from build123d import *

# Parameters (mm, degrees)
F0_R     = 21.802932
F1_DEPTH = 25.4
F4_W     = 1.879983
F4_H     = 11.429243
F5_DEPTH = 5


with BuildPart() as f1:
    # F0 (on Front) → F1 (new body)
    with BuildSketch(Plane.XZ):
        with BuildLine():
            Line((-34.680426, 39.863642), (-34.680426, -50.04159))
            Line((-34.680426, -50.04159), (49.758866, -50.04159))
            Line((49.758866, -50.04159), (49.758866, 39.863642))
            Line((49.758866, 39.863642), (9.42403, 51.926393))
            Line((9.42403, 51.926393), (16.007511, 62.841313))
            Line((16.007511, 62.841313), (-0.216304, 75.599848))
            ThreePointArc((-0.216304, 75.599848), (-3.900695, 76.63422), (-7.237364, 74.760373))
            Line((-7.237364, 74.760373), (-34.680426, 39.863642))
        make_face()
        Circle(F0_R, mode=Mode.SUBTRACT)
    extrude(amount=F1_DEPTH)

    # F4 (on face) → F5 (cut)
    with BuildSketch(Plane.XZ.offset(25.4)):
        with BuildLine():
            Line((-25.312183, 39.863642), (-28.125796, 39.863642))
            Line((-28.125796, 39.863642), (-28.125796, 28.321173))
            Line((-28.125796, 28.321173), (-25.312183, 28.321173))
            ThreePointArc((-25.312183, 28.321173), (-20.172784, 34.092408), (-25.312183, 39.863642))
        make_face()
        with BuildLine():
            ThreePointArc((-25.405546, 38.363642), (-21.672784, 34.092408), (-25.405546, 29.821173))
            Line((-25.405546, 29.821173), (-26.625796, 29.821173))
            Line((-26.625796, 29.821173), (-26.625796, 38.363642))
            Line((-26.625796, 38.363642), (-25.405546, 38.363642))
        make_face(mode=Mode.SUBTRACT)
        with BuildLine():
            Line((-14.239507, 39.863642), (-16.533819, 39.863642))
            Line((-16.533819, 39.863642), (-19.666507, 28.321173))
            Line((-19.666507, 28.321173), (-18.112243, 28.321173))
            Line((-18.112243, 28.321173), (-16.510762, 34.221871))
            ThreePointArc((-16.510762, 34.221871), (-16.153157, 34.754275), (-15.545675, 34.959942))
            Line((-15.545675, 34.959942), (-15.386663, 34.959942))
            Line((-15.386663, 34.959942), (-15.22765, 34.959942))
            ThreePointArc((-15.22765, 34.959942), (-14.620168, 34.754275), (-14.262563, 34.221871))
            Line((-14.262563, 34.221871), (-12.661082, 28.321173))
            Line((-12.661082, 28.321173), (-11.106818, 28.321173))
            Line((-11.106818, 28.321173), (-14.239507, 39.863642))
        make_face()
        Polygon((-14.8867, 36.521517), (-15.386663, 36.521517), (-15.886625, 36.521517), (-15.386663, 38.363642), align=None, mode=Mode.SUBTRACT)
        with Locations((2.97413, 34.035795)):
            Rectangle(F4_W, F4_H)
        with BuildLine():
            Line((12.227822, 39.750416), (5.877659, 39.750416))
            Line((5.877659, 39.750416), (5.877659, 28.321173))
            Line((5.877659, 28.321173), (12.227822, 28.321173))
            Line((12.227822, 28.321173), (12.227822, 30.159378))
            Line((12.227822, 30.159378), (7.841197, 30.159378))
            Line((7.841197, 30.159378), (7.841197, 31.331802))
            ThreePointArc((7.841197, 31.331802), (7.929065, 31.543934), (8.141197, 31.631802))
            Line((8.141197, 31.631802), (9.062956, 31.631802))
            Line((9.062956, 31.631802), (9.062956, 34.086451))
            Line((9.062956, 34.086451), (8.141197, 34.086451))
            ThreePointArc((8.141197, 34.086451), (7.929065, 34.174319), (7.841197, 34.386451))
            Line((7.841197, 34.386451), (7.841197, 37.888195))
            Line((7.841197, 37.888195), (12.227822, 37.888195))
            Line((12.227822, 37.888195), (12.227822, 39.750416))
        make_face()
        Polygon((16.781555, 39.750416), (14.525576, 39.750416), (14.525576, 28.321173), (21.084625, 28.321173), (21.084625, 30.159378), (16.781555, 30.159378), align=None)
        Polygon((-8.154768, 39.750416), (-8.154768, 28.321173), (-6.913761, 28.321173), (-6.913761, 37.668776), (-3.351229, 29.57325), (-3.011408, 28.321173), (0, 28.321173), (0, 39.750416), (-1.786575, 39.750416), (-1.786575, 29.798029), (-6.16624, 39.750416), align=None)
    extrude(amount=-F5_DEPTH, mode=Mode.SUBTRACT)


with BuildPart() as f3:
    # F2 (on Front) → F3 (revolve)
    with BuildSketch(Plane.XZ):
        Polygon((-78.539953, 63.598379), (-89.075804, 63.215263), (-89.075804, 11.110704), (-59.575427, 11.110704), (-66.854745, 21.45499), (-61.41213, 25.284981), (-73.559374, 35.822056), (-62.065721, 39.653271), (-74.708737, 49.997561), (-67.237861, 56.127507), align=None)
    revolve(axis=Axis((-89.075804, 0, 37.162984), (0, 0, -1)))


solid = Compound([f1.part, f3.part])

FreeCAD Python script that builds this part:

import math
import FreeCAD as App
import Part
import Sketcher
from FreeCAD import Vector
Q = App.Units.Quantity


def add_polygon(sketch, points):
    """Adds a closed chain of lines whose ends are joined by coincident constraints."""
    first, n = sketch.GeometryCount, len(points)
    for a, b in zip(points, points[1:] + points[:1]):
        sketch.addGeometry(Part.LineSegment(App.Vector(*a, 0), App.Vector(*b, 0)), False)
    for i in range(n):
        sketch.addConstraint(Sketcher.Constraint("Coincident", first + i, 2, first + (i + 1) % n, 1))

doc = App.newDocument("Part")
body = doc.addObject("PartDesign::Body", "Body")

sketch1 = doc.addObject("Sketcher::SketchObject", "Sketch")
body.addObject(sketch1)
sketch1.AttachmentSupport = (doc.XZ_Plane, [""])
sketch1.MapMode = "FlatFace"
sketch1.addGeometry(Part.LineSegment(Vector(-34.7, 39.9, 0), Vector(-34.7, -50, 0)), False)
sketch1.addGeometry(Part.LineSegment(Vector(-34.7, -50, 0), Vector(49.8, -50, 0)), False)
sketch1.addGeometry(Part.LineSegment(Vector(49.8, -50, 0), Vector(49.8, 39.9, 0)), False)
sketch1.addGeometry(Part.LineSegment(Vector(49.8, 39.9, 0), Vector(9.4, 51.9, 0)), False)
sketch1.addGeometry(Part.LineSegment(Vector(9.4, 51.9, 0), Vector(16, 62.8, 0)), False)
sketch1.addGeometry(Part.LineSegment(Vector(16, 62.8, 0), Vector(-0.2, 75.6, 0)), False)
sketch1.addGeometry(Part.ArcOfCircle(Part.Circle(Vector(-3.3, 71.7, 0), Vector(0, 0, 1), 5), math.radians(52), math.radians(142)), False)
sketch1.addGeometry(Part.LineSegment(Vector(-7.2, 74.8, 0), Vector(-34.7, 39.9, 0)), False)
sketch1.addGeometry(Part.Circle(Vector(0, 0, 0), Vector(0, 0, 1), 21.8), False)
sketch1.addConstraint(Sketcher.Constraint("Coincident", 0, 2, 1, 1))
sketch1.addConstraint(Sketcher.Constraint("Coincident", 1, 2, 2, 1))
sketch1.addConstraint(Sketcher.Constraint("Coincident", 2, 2, 3, 1))
sketch1.addConstraint(Sketcher.Constraint("Coincident", 3, 2, 4, 1))
sketch1.addConstraint(Sketcher.Constraint("Coincident", 4, 2, 5, 1))
sketch1.addConstraint(Sketcher.Constraint("Tangent", 5, 2, 6, 1))
sketch1.addConstraint(Sketcher.Constraint("Tangent", 6, 2, 7, 1))
sketch1.addConstraint(Sketcher.Constraint("Coincident", 7, 2, 0, 1))
sketch1.addConstraint(Sketcher.Constraint("Vertical", 0))
sketch1.addConstraint(Sketcher.Constraint("Horizontal", 1))
sketch1.addConstraint(Sketcher.Constraint("Vertical", 2))
sketch1.addConstraint(Sketcher.Constraint("Coincident", 8, 3, -1, 1))
sketch1.addConstraint(Sketcher.Constraint("Perpendicular", 5, 7))
sketch1.addConstraint(Sketcher.Constraint("Horizontal", 2, 2, 7, 2))
sketch1.addConstraint(Sketcher.Constraint("Radius", 6, Q("4.999999 mm")))
sketch1.addConstraint(Sketcher.Constraint("Diameter", 8, Q("43.605864 mm")))
sketch1.addConstraint(Sketcher.Constraint("DistanceX", 1, 1, 1, 2, Q("84.439292 mm")))
sketch1.addConstraint(Sketcher.Constraint("DistanceY", 0, 2, 0, 1, Q("89.905232 mm")))
sketch1.addConstraint(Sketcher.Constraint("Distance", 7, Q("44.394859 mm")))
sketch1.addConstraint(Sketcher.Constraint("DistanceY", -1, 1, 6, 3, Q("71.669582 mm")))
sketch1.addConstraint(Sketcher.Constraint("DistanceY", 0, 2, -1, 1, Q("50.04159 mm")))
sketch1.addConstraint(Sketcher.Constraint("DistanceX", -1, 1, 3, 2, Q("9.42403 mm")))
sketch1.addConstraint(Sketcher.Constraint("DistanceX", -1, 1, 4, 2, Q("16.007511 mm")))
sketch1.addConstraint(Sketcher.Constraint("DistanceY", 3, 2, 6, 3, Q("19.743189 mm")))
sketch1.addConstraint(Sketcher.Constraint("DistanceY", 3, 2, 4, 2, Q("10.91492 mm")))
pad1 = doc.addObject("PartDesign::Pad", "Pad")
body.addObject(pad1)
pad1.Profile = sketch1
pad1.Length = 25.4

sketch2 = doc.addObject("Sketcher::SketchObject", "Sketch001")
body.addObject(sketch2)
sketch2.AttachmentSupport = (doc.XZ_Plane, [""])
sketch2.MapMode = "FlatFace"
sketch2.AttachmentOffset = App.Placement(Vector(0, 0, 25.4), App.Rotation())
sketch2.addGeometry(Part.LineSegment(Vector(-25.31, 39.86, 0), Vector(-28.13, 39.86, 0)), False)
sketch2.addGeometry(Part.LineSegment(Vector(-28.13, 39.86, 0), Vector(-28.13, 28.32, 0)), False)
sketch2.addGeometry(Part.LineSegment(Vector(-28.13, 28.32, 0), Vector(-25.31, 28.32, 0)), False)
sketch2.addGeometry(Part.ArcOfCircle(Part.Circle(Vector(-25.98, 34.09, 0), Vector(0, 0, 1), 5.81), math.radians(-83), math.radians(83)), False)
sketch2.addGeometry(Part.LineSegment(Vector(-26.63, 38.36, 0), Vector(-25.41, 38.36, 0)), False)
sketch2.addGeometry(Part.ArcOfCircle(Part.Circle(Vector(-25.98, 34.09, 0), Vector(0, 0, 1), 4.31), math.radians(-82), math.radians(82)), False)
sketch2.addGeometry(Part.LineSegment(Vector(-25.41, 29.82, 0), Vector(-26.63, 29.82, 0)), False)
sketch2.addGeometry(Part.LineSegment(Vector(-26.63, 29.82, 0), Vector(-26.63, 38.36, 0)), False)
sketch2.addGeometry(Part.LineSegment(Vector(-14.24, 39.86, 0), Vector(-16.53, 39.86, 0)), False)
sketch2.addGeometry(Part.LineSegment(Vector(-16.53, 39.86, 0), Vector(-19.67, 28.32, 0)), False)
sketch2.addGeometry(Part.LineSegment(Vector(-19.67, 28.32, 0), Vector(-18.11, 28.32, 0)), False)
sketch2.addGeometry(Part.LineSegment(Vector(-18.11, 28.32, 0), Vector(-16.51, 34.22, 0)), False)
sketch2.addGeometry(Part.ArcOfCircle(Part.Circle(Vector(-15.55, 33.96, 0), Vector(0, 0, 1), 1), math.radians(90), math.radians(165)), False)
sketch2.addGeometry(Part.LineSegment(Vector(-15.55, 34.96, 0), Vector(-15.23, 34.96, 0)), False)
sketch2.addGeometry(Part.ArcOfCircle(Part.Circle(Vector(-15.23, 33.96, 0), Vector(0, 0, 1), 1), math.radians(15), math.radians(90)), False)
sketch2.addGeometry(Part.LineSegment(Vector(-14.26, 34.22, 0), Vector(-12.66, 28.32, 0)), False)
sketch2.addGeometry(Part.LineSegment(Vector(-12.66, 28.32, 0), Vector(-11.11, 28.32, 0)), False)
sketch2.addGeometry(Part.LineSegment(Vector(-11.11, 28.32, 0), Vector(-14.24, 39.86, 0)), False)
add_polygon(sketch2, [(-15.39, 38.36), (-14.89, 36.52), (-15.89, 36.52)])
add_polygon(sketch2, [(2.03, 39.75), (2.03, 28.32), (3.91, 28.32), (3.91, 39.75)])
sketch2.addGeometry(Part.LineSegment(Vector(12.23, 39.75, 0), Vector(5.88, 39.75, 0)), False)
sketch2.addGeometry(Part.LineSegment(Vector(5.88, 39.75, 0), Vector(5.88, 28.32, 0)), False)
sketch2.addGeometry(Part.LineSegment(Vector(5.88, 28.32, 0), Vector(12.23, 28.32, 0)), False)
sketch2.addGeometry(Part.LineSegment(Vector(12.23, 28.32, 0), Vector(12.23, 30.16, 0)), False)
sketch2.addGeometry(Part.LineSegment(Vector(12.23, 30.16, 0), Vector(7.84, 30.16, 0)), False)
sketch2.addGeometry(Part.LineSegment(Vector(7.84, 30.16, 0), Vector(7.84, 31.33, 0)), False)
sketch2.addGeometry(Part.ArcOfCircle(Part.Circle(Vector(8.14, 31.33, 0), Vector(0, 0, 1), 0.3), math.radians(90), math.radians(180)), False)
sketch2.addGeometry(Part.LineSegment(Vector(8.14, 31.63, 0), Vector(9.06, 31.63, 0)), False)
sketch2.addGeometry(Part.LineSegment(Vector(9.06, 31.63, 0), Vector(9.06, 34.09, 0)), False)
sketch2.addGeometry(Part.LineSegment(Vector(9.06, 34.09, 0), Vector(8.14, 34.09, 0)), False)
sketch2.addGeometry(Part.ArcOfCircle(Part.Circle(Vector(8.14, 34.39, 0), Vector(0, 0, 1), 0.3), math.radians(-180), math.radians(-90)), False)
sketch2.addGeometry(Part.LineSegment(Vector(7.84, 34.39, 0), Vector(7.84, 37.89, 0)), False)
sketch2.addGeometry(Part.LineSegment(Vector(7.84, 37.89, 0), Vector(12.23, 37.89, 0)), False)
sketch2.addGeometry(Part.LineSegment(Vector(12.23, 37.89, 0), Vector(12.23, 39.75, 0)), False)
add_polygon(sketch2, [(16.78, 39.75), (14.53, 39.75), (14.53, 28.32), (21.08, 28.32), (21.08, 30.16), (16.78, 30.16)])
add_polygon(sketch2, [(-8.15, 39.75), (-8.15, 28.32), (-6.91, 28.32), (-6.91, 37.67), (-3.35, 29.57), (-3.01, 28.32), (0, 28.32), (0, 39.75), (-1.79, 39.75), (-1.79, 29.8), (-6.17, 39.75)])
sketch2.addConstraint(Sketcher.Constraint("Coincident", 0, 2, 1, 1))
sketch2.addConstraint(Sketcher.Constraint("Coincident", 1, 2, 2, 1))
sketch2.addConstraint(Sketcher.Constraint("Coincident", 2, 2, 3, 1))
sketch2.addConstraint(Sketcher.Constraint("Coincident", 3, 2, 0, 1))
sketch2.addConstraint(Sketcher.Constraint("Coincident", 4, 2, 5, 2))
sketch2.addConstraint(Sketcher.Constraint("Coincident", 5, 1, 6, 1))
sketch2.addConstraint(Sketcher.Constraint("Coincident", 6, 2, 7, 1))
sketch2.addConstraint(Sketcher.Constraint("Coincident", 7, 2, 4, 1))
sketch2.addConstraint(Sketcher.Constraint("Coincident", 8, 2, 9, 1))
sketch2.addConstraint(Sketcher.Constraint("Coincident", 9, 2, 10, 1))
sketch2.addConstraint(Sketcher.Constraint("Coincident", 10, 2, 11, 1))
sketch2.addConstraint(Sketcher.Constraint("Tangent", 11, 2, 12, 2))
sketch2.addConstraint(Sketcher.Constraint("Tangent", 12, 1, 13, 1))
sketch2.addConstraint(Sketcher.Constraint("Tangent", 13, 2, 14, 2))
sketch2.addConstraint(Sketcher.Constraint("Tangent", 14, 1, 15, 1))
sketch2.addConstraint(Sketcher.Constraint("Coincident", 15, 2, 16, 1))
sketch2.addConstraint(Sketcher.Constraint("Coincident", 16, 2, 17, 1))
sketch2.addConstraint(Sketcher.Constraint("Coincident", 17, 2, 8, 1))
sketch2.addConstraint(Sketcher.Constraint("Coincident", 25, 2, 26, 1))
sketch2.addConstraint(Sketcher.Constraint("Coincident", 26, 2, 27, 1))
sketch2.addConstraint(Sketcher.Constraint("Coincident", 27, 2, 28, 1))
sketch2.addConstraint(Sketcher.Constraint("Coincident", 28, 2, 29, 1))
sketch2.addConstraint(Sketcher.Constraint("Coincident", 29, 2, 30, 1))
sketch2.addConstraint(Sketcher.Constraint("Tangent", 30, 2, 31, 2))
sketch2.addConstraint(Sketcher.Constraint("Tangent", 31, 1, 32, 1))
sketch2.addConstraint(Sketcher.Constraint("Coincident", 32, 2, 33, 1))
sketch2.addConstraint(Sketcher.Constraint("Coincident", 33, 2, 34, 1))
sketch2.addConstraint(Sketcher.Constraint("Tangent", 34, 2, 35, 2))
sketch2.addConstraint(Sketcher.Constraint("Tangent", 35, 1, 36, 1))
sketch2.addConstraint(Sketcher.Constraint("Coincident", 36, 2, 37, 1))
sketch2.addConstraint(Sketcher.Constraint("Coincident", 37, 2, 38, 1))
sketch2.addConstraint(Sketcher.Constraint("Coincident", 38, 2, 25, 1))
sketch2.addConstraint(Sketcher.Constraint("Horizontal", 0))
sketch2.addConstraint(Sketcher.Constraint("Vertical", 1))
sketch2.addConstraint(Sketcher.Constraint("Horizontal", 2))
sketch2.addConstraint(Sketcher.Constraint("Horizontal", 4))
sketch2.addConstraint(Sketcher.Constraint("Horizontal", 6))
sketch2.addConstraint(Sketcher.Constraint("Vertical", 7))
sketch2.addConstraint(Sketcher.Constraint("Horizontal", 8))
sketch2.addConstraint(Sketcher.Constraint("Horizontal", 10))
sketch2.addConstraint(Sketcher.Constraint("Horizontal", 13))
sketch2.addConstraint(Sketcher.Constraint("Horizontal", 16))
sketch2.addConstraint(Sketcher.Constraint("Horizontal", 19))
sketch2.addConstraint(Sketcher.Constraint("Vertical", 21))
sketch2.addConstraint(Sketcher.Constraint("Horizontal", 22))
sketch2.addConstraint(Sketcher.Constraint("Vertical", 23))
sketch2.addConstraint(Sketcher.Constraint("Horizontal", 24))
sketch2.addConstraint(Sketcher.Constraint("Horizontal", 25))
sketch2.addConstraint(Sketcher.Constraint("Vertical", 26))
sketch2.addConstraint(Sketcher.Constraint("Horizontal", 27))
sketch2.addConstraint(Sketcher.Constraint("Vertical", 28))
sketch2.addConstraint(Sketcher.Constraint("Horizontal", 29))
sketch2.addConstraint(Sketcher.Constraint("Vertical", 30))
sketch2.addConstraint(Sketcher.Constraint("Horizontal", 32))
sketch2.addConstraint(Sketcher.Constraint("Vertical", 33))
sketch2.addConstraint(Sketcher.Constraint("Horizontal", 34))
sketch2.addConstraint(Sketcher.Constraint("Vertical", 36))
sketch2.addConstraint(Sketcher.Constraint("Horizontal", 37))
sketch2.addConstraint(Sketcher.Constraint("Vertical", 38))
sketch2.addConstraint(Sketcher.Constraint("Horizontal", 39))
sketch2.addConstraint(Sketcher.Constraint("Vertical", 40))
sketch2.addConstraint(Sketcher.Constraint("Horizontal", 41))
sketch2.addConstraint(Sketcher.Constraint("Vertical", 42))
sketch2.addConstraint(Sketcher.Constraint("Horizontal", 43))
sketch2.addConstraint(Sketcher.Constraint("Vertical", 44))
sketch2.addConstraint(Sketcher.Constraint("Vertical", 45))
sketch2.addConstraint(Sketcher.Constraint("Horizontal", 46))
sketch2.addConstraint(Sketcher.Constraint("Vertical", 47))
sketch2.addConstraint(Sketcher.Constraint("Horizontal", 50))
sketch2.addConstraint(Sketcher.Constraint("Vertical", 51))
sketch2.addConstraint(Sketcher.Constraint("Horizontal", 52))
sketch2.addConstraint(Sketcher.Constraint("Vertical", 53))
sketch2.addConstraint(Sketcher.Constraint("Horizontal", 55))
sketch2.addConstraint(Sketcher.Constraint("Coincident", 5, 3, 3, 3))
sketch2.addConstraint(Sketcher.Constraint("Equal", 12, 14))
sketch2.addConstraint(Sketcher.Constraint("Equal", 31, 35))
sketch2.addConstraint(Sketcher.Constraint("PointOnObject", 50, 2, -2))
sketch2.addConstraint(Sketcher.Constraint("Parallel", 9, 11))
sketch2.addConstraint(Sketcher.Constraint("Parallel", 15, 17))
sketch2.addConstraint(Sketcher.Constraint("Parallel", 17, 18))
sketch2.addConstraint(Sketcher.Constraint("Parallel", 11, 20))
sketch2.addConstraint(Sketcher.Constraint("Parallel", 18, 49))
sketch2.addConstraint(Sketcher.Constraint("Parallel", 48, 54))
sketch2.addConstraint(Sketcher.Constraint("Horizontal", 3, 2, 8, 2))
sketch2.addConstraint(Sketcher.Constraint("Horizontal", 2, 2, 9, 2))
sketch2.addConstraint(Sketcher.Constraint("Horizontal", 11, 2, 14, 1))
sketch2.addConstraint(Sketcher.Constraint("Horizontal", 10, 2, 15, 2))
sketch2.addConstraint(Sketcher.Constraint("Horizontal", 7, 2, 20, 2))
sketch2.addConstraint(Sketcher.Constraint("Horizontal", 16, 2, 21, 2))
sketch2.addConstraint(Sketcher.Constraint("Horizontal", 24, 2, 25, 2))
sketch2.addConstraint(Sketcher.Constraint("Horizontal", 22, 2, 26, 2))
sketch2.addConstraint(Sketcher.Constraint("Horizontal", 38, 2, 39, 2))
sketch2.addConstraint(Sketcher.Constraint("Horizontal", 27, 2, 40, 2))
sketch2.addConstraint(Sketcher.Constraint("Horizontal", 29, 2, 42, 2))
sketch2.addConstraint(Sketcher.Constraint("Horizontal", 41, 2, 45, 2))
sketch2.addConstraint(Sketcher.Constraint("Horizontal", 46, 2, 49, 2))
sketch2.addConstraint(Sketcher.Constraint("Horizontal", 44, 2, 51, 2))
sketch2.addConstraint(Sketcher.Constraint("Horizontal", 52, 2, 54, 2))
sketch2.addConstraint(Sketcher.Constraint("Vertical", 31, 3, 35, 3))
sketch2.addConstraint(Sketcher.Constraint("Vertical", 2, 2, 3, 2))
sketch2.addConstraint(Sketcher.Constraint("Vertical", 4, 2, 5, 1))
sketch2.addConstraint(Sketcher.Constraint("Vertical", 28, 2, 37, 2))
sketch2.addConstraint(Sketcher.Constraint("Equal", 10, 16))
sketch2.addConstraint(Sketcher.Constraint("Radius", 12, Q("1.000001 mm")))
sketch2.addConstraint(Sketcher.Constraint("Radius", 31, Q("0.3 mm")))
sketch2.addConstraint(Sketcher.Constraint("Radius", 3, Q("5.810073 mm")))
sketch2.addConstraint(Sketcher.Constraint("Radius", 5, Q("4.310073 mm")))
sketch2.addConstraint(Sketcher.Constraint("DistanceX", 4, 1, 4, 2, Q("1.22025 mm")))
sketch2.addConstraint(Sketcher.Constraint("DistanceX", 32, 1, 32, 2, Q("0.921759 mm")))
sketch2.addConstraint(Sketcher.Constraint("DistanceX", 39, 2, 39, 1, Q("2.255979 mm")))
sketch2.addConstraint(Sketcher.Constraint("DistanceX", 41, 1, 41, 2, Q("6.559049 mm")))
sketch2.addConstraint(Sketcher.Constraint("DistanceX", 55, 2, 55, 1, Q("1.988528 mm")))
sketch2.addConstraint(Sketcher.Constraint("DistanceY", 1, 2, 1, 1, Q("11.542469 mm")))
sketch2.addConstraint(Sketcher.Constraint("DistanceY", 7, 1, 7, 2, Q("8.542469 mm")))
sketch2.addConstraint(Sketcher.Constraint("DistanceY", 33, 1, 33, 2, Q("2.454649 mm")))
sketch2.addConstraint(Sketcher.Constraint("DistanceY", 38, 1, 38, 2, Q("1.862221 mm")))
sketch2.addConstraint(Sketcher.Constraint("DistanceY", 44, 1, 44, 2, Q("9.591038 mm")))
sketch2.addConstraint(Sketcher.Constraint("DistanceY", -1, 1, 31, 3, Q("31.331802 mm")))
sketch2.addConstraint(Sketcher.Constraint("DistanceX", 18, 2, -1, 1, Q("14.8867 mm")))
sketch2.addConstraint(Sketcher.Constraint("Distance", 9, Q("11.96003 mm")))
sketch2.addConstraint(Sketcher.Constraint("Distance", 54, Q("10.87343 mm")))
sketch2.addConstraint(Sketcher.Constraint("DistanceX", 0, 2, 0, 1, Q("2.813613 mm")))
sketch2.addConstraint(Sketcher.Constraint("DistanceX", 8, 2, 8, 1, Q("2.294312 mm")))
sketch2.addConstraint(Sketcher.Constraint("DistanceX", 10, 1, 10, 2, Q("1.554264 mm")))
sketch2.addConstraint(Sketcher.Constraint("DistanceX", 13, 1, 13, 2, Q("0.318025 mm")))
sketch2.addConstraint(Sketcher.Constraint("DistanceX", 19, 2, 19, 1, Q("0.999925 mm")))
sketch2.addConstraint(Sketcher.Constraint("DistanceX", 22, 1, 22, 2, Q("1.879983 mm")))
sketch2.addConstraint(Sketcher.Constraint("DistanceX", 25, 2, 25, 1, Q("6.350163 mm")))
sketch2.addConstraint(Sketcher.Constraint("DistanceX", 29, 2, 29, 1, Q("4.386625 mm")))
sketch2.addConstraint(Sketcher.Constraint("DistanceX", 46, 1, 46, 2, Q("1.241007 mm")))
sketch2.addConstraint(Sketcher.Constraint("DistanceX", 50, 1, 50, 2, Q("3.011408 mm")))
sketch2.addConstraint(Sketcher.Constraint("DistanceX", 52, 2, 52, 1, Q("1.786575 mm")))
sketch2.addConstraint(Sketcher.Constraint("DistanceY", 21, 2, 21, 1, Q("11.429243 mm")))
sketch2.addConstraint(Sketcher.Constraint("DistanceY", 30, 1, 30, 2, Q("1.172424 mm")))
sketch2.addConstraint(Sketcher.Constraint("DistanceY", 47, 1, 47, 2, Q("9.347603 mm")))
sketch2.addConstraint(Sketcher.Constraint("DistanceY", 53, 2, 53, 1, Q("9.952387 mm")))
sketch2.addConstraint(Sketcher.Constraint("DistanceX", 14, 3, -1, 1, Q("15.227651 mm")))
sketch2.addConstraint(Sketcher.Constraint("DistanceX", -1, 1, 21, 2, Q("2.034139 mm")))
sketch2.addConstraint(Sketcher.Constraint("DistanceX", -1, 1, 25, 2, Q("5.877659 mm")))
sketch2.addConstraint(Sketcher.Constraint("DistanceX", 3, 3, -1, 1, Q("25.982857 mm")))
sketch2.addConstraint(Sketcher.Constraint("DistanceX", -1, 1, 39, 2, Q("14.525576 mm")))
pocket1 = doc.addObject("PartDesign::Pocket", "Pocket")
body.addObject(pocket1)
pocket1.Profile = sketch2
pocket1.Length = 5
body2 = doc.addObject("PartDesign::Body", "Body001")

sketch3 = doc.addObject("Sketcher::SketchObject", "Sketch002")
body2.addObject(sketch3)
sketch3.AttachmentSupport = (doc.getObject("XZ_Plane001"), [""])
sketch3.MapMode = "FlatFace"
add_polygon(sketch3, [(-79, 64), (-89, 63), (-89, 11), (-60, 11), (-67, 21), (-61, 25), (-74, 36), (-62, 40), (-75, 50), (-67, 56)])
sketch3.addGeometry(Part.LineSegment(Vector(-89, 64, 0), Vector(-89, 11, 0)), True)
sketch3.addConstraint(Sketcher.Constraint("Vertical", 1))
sketch3.addConstraint(Sketcher.Constraint("Horizontal", 2))
sketch3.addConstraint(Sketcher.Constraint("Vertical", 10))
sketch3.addConstraint(Sketcher.Constraint("Coincident", 10, 2, 1, 2))
sketch3.addConstraint(Sketcher.Constraint("Perpendicular", 3, 4))
sketch3.addConstraint(Sketcher.Constraint("Horizontal", 9, 2, 10, 1))
sketch3.addConstraint(Sketcher.Constraint("DistanceY", 1, 2, 1, 1, Q("52.104559 mm")))
sketch3.addConstraint(Sketcher.Constraint("Distance", 4, Q("6.65514 mm")))
sketch3.addConstraint(Sketcher.Constraint("Distance", 7, Q("16.33555 mm")))
sketch3.addConstraint(Sketcher.Constraint("Distance", 8, Q("9.663862 mm")))
sketch3.addConstraint(Sketcher.Constraint("DistanceX", 2, 1, 2, 2, Q("29.500377 mm")))
sketch3.addConstraint(Sketcher.Constraint("DistanceY", 10, 2, 10, 1, Q("52.487675 mm")))
sketch3.addConstraint(Sketcher.Constraint("DistanceY", -1, 1, 3, 2, Q("21.45499 mm")))
sketch3.addConstraint(Sketcher.Constraint("DistanceX", 4, 2, -1, 1, Q("61.41213 mm")))
sketch3.addConstraint(Sketcher.Constraint("DistanceY", -1, 1, 4, 2, Q("25.284981 mm")))
sketch3.addConstraint(Sketcher.Constraint("DistanceX", 6, 2, -1, 1, Q("62.065721 mm")))
sketch3.addConstraint(Sketcher.Constraint("DistanceY", -1, 1, 6, 2, Q("39.653271 mm")))
sketch3.addConstraint(Sketcher.Constraint("DistanceY", -1, 1, 7, 2, Q("49.997561 mm")))
sketch3.addConstraint(Sketcher.Constraint("DistanceX", 8, 2, -1, 1, Q("67.237861 mm")))
sketch3.addConstraint(Sketcher.Constraint("DistanceY", -1, 1, 9, 2, Q("63.598379 mm")))
sketch3.addConstraint(Sketcher.Constraint("DistanceX", 5, 2, 3, 2, Q("6.704629 mm")))
sketch3.addConstraint(Sketcher.Constraint("DistanceY", 5, 2, 8, 2, Q("20.305451 mm")))
sketch3.addConstraint(Sketcher.Constraint("DistanceX", 0, 2, 9, 2, Q("10.535851 mm")))
revolution = doc.addObject("PartDesign::Revolution", "Revolution")
body2.addObject(revolution)
revolution.Profile = sketch3
revolution.ReferenceAxis = (sketch3, ["Axis0"])
revolution.Angle = 360

doc.recompute()
